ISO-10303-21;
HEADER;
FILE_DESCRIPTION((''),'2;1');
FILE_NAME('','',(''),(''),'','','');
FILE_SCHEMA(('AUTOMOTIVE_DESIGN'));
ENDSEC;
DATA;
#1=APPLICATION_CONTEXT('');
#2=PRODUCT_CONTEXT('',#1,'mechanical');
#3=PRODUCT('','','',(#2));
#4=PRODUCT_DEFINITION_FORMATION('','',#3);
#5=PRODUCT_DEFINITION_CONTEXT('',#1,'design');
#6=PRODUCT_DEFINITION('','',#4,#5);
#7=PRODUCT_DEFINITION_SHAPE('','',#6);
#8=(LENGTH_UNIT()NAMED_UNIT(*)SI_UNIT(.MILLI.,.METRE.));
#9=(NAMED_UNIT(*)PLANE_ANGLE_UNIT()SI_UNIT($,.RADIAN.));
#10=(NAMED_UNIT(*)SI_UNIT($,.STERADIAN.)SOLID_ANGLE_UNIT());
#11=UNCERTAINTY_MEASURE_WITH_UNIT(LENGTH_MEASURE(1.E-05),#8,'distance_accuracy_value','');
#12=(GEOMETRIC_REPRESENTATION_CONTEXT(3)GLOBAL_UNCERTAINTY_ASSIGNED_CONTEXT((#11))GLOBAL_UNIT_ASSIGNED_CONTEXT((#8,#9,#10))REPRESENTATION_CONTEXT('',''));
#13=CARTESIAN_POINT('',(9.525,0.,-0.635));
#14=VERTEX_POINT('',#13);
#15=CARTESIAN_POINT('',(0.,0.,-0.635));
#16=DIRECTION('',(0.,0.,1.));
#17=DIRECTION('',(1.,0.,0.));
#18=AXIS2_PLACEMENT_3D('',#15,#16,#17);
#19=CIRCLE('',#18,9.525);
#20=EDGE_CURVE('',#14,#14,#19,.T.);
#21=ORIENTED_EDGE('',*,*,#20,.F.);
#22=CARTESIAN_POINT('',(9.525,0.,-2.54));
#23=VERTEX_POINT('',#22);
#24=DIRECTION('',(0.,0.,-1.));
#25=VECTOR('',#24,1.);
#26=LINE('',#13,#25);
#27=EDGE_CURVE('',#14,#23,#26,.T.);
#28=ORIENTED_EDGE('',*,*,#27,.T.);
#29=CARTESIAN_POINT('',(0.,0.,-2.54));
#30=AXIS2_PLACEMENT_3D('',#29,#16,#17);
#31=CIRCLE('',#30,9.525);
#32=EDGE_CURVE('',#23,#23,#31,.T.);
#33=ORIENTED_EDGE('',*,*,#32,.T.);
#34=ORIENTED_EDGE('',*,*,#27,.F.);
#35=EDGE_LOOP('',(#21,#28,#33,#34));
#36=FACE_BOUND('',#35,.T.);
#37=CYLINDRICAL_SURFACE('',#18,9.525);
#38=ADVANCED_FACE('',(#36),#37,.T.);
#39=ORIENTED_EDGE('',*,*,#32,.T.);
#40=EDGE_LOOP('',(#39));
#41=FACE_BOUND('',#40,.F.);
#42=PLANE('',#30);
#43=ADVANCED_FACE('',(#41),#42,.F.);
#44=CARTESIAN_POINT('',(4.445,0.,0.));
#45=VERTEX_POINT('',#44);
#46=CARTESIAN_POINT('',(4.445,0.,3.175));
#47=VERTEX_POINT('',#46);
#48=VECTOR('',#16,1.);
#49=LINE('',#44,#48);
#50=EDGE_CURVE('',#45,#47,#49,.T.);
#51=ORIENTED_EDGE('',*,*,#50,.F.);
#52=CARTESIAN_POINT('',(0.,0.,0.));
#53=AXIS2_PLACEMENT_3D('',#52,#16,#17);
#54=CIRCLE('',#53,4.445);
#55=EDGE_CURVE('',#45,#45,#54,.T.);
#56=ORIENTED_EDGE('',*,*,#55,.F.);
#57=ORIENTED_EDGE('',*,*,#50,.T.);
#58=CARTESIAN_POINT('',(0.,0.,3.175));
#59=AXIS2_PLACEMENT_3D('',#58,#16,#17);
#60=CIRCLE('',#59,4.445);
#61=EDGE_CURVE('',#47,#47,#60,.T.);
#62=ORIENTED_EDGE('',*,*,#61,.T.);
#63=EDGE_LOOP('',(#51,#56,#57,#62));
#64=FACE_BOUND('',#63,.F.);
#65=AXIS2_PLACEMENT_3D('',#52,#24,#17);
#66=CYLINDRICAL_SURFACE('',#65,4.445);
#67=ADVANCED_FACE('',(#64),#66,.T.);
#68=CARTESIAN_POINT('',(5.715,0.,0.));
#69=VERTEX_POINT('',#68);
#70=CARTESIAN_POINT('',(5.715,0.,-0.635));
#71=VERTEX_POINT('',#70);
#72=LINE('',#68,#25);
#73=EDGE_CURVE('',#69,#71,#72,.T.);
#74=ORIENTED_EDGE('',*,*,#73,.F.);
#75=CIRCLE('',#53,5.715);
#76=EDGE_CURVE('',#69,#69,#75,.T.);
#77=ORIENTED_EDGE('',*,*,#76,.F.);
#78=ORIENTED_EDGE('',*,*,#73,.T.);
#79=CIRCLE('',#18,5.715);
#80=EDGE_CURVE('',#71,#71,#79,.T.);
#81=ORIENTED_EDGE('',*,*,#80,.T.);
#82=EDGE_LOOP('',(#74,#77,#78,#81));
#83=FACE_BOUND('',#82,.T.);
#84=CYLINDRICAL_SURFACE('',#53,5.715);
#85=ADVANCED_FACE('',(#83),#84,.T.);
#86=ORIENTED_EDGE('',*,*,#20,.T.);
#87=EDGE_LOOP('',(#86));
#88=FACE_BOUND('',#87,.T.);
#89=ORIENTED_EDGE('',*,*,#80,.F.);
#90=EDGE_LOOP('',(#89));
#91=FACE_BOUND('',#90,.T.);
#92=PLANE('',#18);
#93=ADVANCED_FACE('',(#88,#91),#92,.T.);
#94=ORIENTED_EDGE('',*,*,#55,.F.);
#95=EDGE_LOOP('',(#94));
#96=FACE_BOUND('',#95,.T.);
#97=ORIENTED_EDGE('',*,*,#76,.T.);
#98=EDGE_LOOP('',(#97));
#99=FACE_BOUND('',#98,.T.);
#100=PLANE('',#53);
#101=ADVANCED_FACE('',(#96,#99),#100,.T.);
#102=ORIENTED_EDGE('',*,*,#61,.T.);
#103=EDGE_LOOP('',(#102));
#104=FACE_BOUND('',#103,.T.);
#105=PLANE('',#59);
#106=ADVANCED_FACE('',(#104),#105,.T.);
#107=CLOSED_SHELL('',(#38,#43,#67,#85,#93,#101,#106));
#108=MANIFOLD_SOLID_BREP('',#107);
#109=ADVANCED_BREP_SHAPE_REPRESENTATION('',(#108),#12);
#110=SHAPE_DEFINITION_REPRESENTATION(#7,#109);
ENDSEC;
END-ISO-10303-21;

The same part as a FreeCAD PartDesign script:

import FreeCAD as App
import Part
import Sketcher
Q = App.Units.Quantity

doc = App.newDocument("Part")
body = doc.addObject("PartDesign::Body", "Body")

# Sketch on XY plane
sketch1 = doc.addObject("Sketcher::SketchObject", "Sketch")
body.addObject(sketch1)
sketch1.AttachmentSupport = (doc.XY_Plane, [""])
sketch1.MapMode = "FlatFace"
sketch1.addGeometry(Part.Circle(App.Vector(0, 0, 0), App.Vector(0, 0, 1), 4.445), False)
sketch1.addConstraint(Sketcher.Constraint("Coincident", 0, 3, -1, 1))
sketch1.addConstraint(Sketcher.Constraint("Diameter", 0, Q("0.35 in")))
pad1 = doc.addObject("PartDesign::Pad", "Pad")
body.addObject(pad1)
pad1.Profile = sketch1
pad1.Length = Q("0.125 in")

# Sketch on XY plane
sketch2 = doc.addObject("Sketcher::SketchObject", "Sketch001")
body.addObject(sketch2)
sketch2.AttachmentSupport = (doc.XY_Plane, [""])
sketch2.MapMode = "FlatFace"
sketch2.addGeometry(Part.Circle(App.Vector(0, 0, 0), App.Vector(0, 0, 1), 5.715), False)
sketch2.addConstraint(Sketcher.Constraint("Coincident", 0, 3, -1, 1))
sketch2.addConstraint(Sketcher.Constraint("Diameter", 0, Q("0.45 in")))
pad2 = doc.addObject("PartDesign::Pad", "Pad001")
body.addObject(pad2)
pad2.Profile = sketch2
pad2.Length = Q("0.025 in")
pad2.Reversed = True

# Sketch on XY plane
sketch3 = doc.addObject("Sketcher::SketchObject", "Sketch002")
body.addObject(sketch3)
sketch3.AttachmentSupport = (doc.XY_Plane, [""])
sketch3.MapMode = "FlatFace"
sketch3.AttachmentOffset = App.Placement(App.Vector(0, 0, -0.025 * 25.4), App.Rotation())
sketch3.addGeometry(Part.Circle(App.Vector(0, 0, 0), App.Vector(0, 0, 1), 9.525), False)
sketch3.addConstraint(Sketcher.Constraint("Coincident", 0, 3, -1, 1))
sketch3.addConstraint(Sketcher.Constraint("Diameter", 0, Q("0.75 in")))
pad3 = doc.addObject("PartDesign::Pad", "Pad002")
body.addObject(pad3)
pad3.Profile = sketch3
pad3.Length = Q("0.075 in")
pad3.Reversed = True

doc.recompute()
